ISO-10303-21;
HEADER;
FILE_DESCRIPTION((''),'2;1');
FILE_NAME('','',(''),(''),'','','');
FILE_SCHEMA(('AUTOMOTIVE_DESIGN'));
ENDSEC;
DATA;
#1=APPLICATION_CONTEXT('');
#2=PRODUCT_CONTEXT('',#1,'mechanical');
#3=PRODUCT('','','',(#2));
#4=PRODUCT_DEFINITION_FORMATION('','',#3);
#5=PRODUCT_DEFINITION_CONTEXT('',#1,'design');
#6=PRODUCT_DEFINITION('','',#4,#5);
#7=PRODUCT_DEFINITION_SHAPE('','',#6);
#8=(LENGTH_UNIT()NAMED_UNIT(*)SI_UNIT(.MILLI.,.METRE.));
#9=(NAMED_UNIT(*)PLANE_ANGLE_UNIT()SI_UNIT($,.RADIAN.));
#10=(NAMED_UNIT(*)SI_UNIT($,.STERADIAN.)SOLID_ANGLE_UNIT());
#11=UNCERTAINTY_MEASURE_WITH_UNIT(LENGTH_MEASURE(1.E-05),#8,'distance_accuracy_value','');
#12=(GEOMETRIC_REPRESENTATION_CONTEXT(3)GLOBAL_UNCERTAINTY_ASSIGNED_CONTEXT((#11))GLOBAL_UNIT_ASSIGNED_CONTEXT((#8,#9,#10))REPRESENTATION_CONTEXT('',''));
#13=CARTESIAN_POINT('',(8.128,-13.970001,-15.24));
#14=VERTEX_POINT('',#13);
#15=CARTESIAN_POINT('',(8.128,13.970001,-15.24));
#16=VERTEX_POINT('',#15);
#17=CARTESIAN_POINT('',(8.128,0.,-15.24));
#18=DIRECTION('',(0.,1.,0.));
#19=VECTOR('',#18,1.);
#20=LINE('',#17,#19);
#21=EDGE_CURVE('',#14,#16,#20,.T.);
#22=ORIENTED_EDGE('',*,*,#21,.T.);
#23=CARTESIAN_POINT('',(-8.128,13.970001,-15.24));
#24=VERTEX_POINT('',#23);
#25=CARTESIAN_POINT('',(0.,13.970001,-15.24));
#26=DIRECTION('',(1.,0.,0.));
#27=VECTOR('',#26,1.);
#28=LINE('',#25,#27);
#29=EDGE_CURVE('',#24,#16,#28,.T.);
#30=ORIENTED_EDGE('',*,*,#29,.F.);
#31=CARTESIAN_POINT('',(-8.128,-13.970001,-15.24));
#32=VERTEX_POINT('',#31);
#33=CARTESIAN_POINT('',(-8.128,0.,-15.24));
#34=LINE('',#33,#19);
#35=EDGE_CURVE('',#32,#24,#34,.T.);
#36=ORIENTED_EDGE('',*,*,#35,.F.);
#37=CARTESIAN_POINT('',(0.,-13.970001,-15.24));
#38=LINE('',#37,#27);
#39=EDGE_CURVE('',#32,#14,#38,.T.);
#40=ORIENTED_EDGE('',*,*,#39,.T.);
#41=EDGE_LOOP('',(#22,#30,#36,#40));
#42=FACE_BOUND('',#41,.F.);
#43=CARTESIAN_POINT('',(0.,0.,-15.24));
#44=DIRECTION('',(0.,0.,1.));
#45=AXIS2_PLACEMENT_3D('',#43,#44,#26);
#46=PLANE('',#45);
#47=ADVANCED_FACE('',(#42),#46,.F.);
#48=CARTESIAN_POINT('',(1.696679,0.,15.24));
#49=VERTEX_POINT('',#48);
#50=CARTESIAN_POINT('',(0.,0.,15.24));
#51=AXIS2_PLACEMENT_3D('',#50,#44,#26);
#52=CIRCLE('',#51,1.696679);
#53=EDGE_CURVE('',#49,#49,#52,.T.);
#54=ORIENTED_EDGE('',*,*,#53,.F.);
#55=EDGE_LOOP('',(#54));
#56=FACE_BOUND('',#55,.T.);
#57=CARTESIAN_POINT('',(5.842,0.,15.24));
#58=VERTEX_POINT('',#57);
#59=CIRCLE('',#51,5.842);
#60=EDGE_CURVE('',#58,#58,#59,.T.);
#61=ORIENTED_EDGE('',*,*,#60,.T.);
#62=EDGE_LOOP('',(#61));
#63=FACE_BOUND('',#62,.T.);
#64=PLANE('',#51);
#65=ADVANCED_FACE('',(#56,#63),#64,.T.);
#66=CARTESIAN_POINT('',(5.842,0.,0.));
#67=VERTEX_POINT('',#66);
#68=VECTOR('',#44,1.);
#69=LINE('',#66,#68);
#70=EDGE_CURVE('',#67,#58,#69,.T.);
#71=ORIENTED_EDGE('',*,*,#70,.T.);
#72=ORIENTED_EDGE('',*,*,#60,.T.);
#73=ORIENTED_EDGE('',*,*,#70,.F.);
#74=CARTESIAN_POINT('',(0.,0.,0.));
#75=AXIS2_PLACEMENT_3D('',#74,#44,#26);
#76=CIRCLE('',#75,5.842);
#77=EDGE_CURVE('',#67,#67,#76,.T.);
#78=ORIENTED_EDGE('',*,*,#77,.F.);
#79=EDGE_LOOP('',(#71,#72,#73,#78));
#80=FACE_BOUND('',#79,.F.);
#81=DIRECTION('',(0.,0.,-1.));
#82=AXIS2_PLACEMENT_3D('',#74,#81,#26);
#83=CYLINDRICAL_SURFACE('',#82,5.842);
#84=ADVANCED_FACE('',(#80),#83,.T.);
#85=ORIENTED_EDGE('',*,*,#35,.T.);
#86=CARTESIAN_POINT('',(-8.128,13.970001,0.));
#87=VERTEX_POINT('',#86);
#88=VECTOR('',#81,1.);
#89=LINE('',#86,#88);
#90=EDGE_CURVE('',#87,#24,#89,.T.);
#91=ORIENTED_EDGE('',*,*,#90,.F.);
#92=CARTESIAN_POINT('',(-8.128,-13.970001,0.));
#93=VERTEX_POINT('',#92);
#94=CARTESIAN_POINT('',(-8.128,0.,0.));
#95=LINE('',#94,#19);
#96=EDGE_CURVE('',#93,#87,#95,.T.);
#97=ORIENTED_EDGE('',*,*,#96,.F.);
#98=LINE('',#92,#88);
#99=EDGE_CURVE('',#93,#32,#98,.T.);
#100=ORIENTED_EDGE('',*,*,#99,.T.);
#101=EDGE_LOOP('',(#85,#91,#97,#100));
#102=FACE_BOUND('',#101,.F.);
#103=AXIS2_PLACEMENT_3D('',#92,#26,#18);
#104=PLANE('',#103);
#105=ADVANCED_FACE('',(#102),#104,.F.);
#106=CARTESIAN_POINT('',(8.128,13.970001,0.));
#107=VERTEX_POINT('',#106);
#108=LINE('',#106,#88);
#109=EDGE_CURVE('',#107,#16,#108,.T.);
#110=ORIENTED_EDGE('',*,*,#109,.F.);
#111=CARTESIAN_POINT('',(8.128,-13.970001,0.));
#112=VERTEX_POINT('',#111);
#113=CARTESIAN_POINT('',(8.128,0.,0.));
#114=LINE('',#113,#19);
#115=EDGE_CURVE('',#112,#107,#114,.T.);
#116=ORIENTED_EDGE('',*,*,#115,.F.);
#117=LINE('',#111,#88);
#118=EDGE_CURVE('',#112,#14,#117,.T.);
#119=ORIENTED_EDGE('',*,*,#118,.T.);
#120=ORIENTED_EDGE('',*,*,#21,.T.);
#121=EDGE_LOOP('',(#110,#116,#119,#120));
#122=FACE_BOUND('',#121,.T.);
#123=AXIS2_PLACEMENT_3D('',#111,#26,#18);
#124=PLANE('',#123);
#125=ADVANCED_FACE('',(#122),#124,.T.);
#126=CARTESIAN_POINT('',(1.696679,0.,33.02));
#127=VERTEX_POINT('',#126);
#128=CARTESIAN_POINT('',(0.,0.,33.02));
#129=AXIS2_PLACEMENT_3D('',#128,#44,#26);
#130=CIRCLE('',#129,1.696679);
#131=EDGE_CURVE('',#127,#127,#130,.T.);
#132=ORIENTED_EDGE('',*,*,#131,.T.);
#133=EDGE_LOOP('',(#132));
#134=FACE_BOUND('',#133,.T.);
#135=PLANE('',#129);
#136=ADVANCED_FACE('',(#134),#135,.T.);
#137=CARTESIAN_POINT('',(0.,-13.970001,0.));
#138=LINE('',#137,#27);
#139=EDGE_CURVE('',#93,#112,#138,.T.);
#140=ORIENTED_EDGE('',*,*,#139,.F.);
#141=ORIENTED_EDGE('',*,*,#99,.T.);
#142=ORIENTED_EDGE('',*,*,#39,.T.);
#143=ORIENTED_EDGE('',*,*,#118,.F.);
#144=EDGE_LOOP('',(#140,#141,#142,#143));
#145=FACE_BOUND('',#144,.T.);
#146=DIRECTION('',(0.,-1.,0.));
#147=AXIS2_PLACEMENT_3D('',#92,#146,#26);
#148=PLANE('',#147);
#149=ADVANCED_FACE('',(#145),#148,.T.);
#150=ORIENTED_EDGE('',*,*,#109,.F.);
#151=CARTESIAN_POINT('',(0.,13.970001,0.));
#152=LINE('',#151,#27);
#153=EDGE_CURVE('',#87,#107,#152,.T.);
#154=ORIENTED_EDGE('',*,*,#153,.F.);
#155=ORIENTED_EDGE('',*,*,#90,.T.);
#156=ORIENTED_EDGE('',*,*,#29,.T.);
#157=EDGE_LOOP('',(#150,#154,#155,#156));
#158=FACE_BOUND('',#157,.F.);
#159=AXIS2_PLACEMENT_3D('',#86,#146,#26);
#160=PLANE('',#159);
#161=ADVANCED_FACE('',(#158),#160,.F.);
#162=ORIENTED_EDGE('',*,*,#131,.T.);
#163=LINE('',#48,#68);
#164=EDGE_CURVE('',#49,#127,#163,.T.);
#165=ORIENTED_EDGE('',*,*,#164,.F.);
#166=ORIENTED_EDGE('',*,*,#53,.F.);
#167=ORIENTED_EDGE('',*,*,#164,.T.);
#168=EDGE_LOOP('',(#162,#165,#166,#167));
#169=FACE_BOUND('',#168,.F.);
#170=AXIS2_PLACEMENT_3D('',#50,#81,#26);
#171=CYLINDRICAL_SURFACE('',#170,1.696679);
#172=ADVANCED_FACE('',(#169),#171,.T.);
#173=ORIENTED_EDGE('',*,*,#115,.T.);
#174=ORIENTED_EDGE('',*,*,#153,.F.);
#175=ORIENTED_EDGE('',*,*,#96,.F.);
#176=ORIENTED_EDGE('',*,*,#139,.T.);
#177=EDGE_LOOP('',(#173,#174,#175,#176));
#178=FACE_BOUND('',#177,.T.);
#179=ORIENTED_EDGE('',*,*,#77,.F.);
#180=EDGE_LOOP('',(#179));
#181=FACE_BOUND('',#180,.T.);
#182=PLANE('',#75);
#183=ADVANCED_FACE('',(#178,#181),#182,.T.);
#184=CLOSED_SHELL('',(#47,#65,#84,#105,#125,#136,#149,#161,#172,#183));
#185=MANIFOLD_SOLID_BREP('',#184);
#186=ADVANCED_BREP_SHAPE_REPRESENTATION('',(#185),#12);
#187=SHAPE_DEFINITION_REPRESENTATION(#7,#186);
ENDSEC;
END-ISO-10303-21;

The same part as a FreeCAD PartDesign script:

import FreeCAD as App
import Part
import Sketcher
Q = App.Units.Quantity

doc = App.newDocument("Part")
body = doc.addObject("PartDesign::Body", "Body")

# Sketch on XY plane
sketch1 = body.newObject("Sketcher::SketchObject", "Sketch")
sketch1.AttachmentSupport = (doc.getObject("XY_Plane"), [""])
sketch1.MapMode = "FlatFace"
sketch1.addGeometry(Part.Circle(App.Vector(0, 0, 0), App.Vector(0, 0, 1), 5.842), False)
sketch1.addConstraint(Sketcher.Constraint("Coincident", 0, 3, -1, 1))
sketch1.addConstraint(Sketcher.Constraint("Diameter", 0, Q("0.46 in")))
pad1 = body.newObject("PartDesign::Pad", "Pad")
pad1.Profile = sketch1
pad1.Length = Q("0.6 in")

# Sketch on XY plane
sketch2 = body.newObject("Sketcher::SketchObject", "Sketch001")
sketch2.AttachmentSupport = (doc.getObject("XY_Plane"), [""])
sketch2.MapMode = "FlatFace"
sketch2.AttachmentOffset = App.Placement(App.Vector(0, 0, 0.6 * 25.4), App.Rotation())
sketch2.addGeometry(Part.Circle(App.Vector(0, 0, 0), App.Vector(0, 0, 1), 1.696679), False)
sketch2.addConstraint(Sketcher.Constraint("Coincident", 0, 3, -1, 1))
sketch2.addConstraint(Sketcher.Constraint("Diameter", 0, Q("3.393358 mm")))
pad2 = body.newObject("PartDesign::Pad", "Pad001")
pad2.Profile = sketch2
pad2.Length = Q("0.7 in")

# Sketch on XY plane
sketch3 = body.newObject("Sketcher::SketchObject", "Sketch002")
sketch3.AttachmentSupport = (doc.getObject("XY_Plane"), [""])
sketch3.MapMode = "FlatFace"
sketch3.addGeometry(Part.LineSegment(App.Vector(-8.128, 13.970001, 0), App.Vector(-8.128, -13.970001, 0)), False)
sketch3.addGeometry(Part.LineSegment(App.Vector(-8.128, -13.970001, 0), App.Vector(8.128, -13.970001, 0)), False)
sketch3.addGeometry(Part.LineSegment(App.Vector(8.128, -13.970001, 0), App.Vector(8.128, 13.970001, 0)), False)
sketch3.addGeometry(Part.LineSegment(App.Vector(8.128, 13.970001, 0), App.Vector(-8.128, 13.970001, 0)), False)
sketch3.addConstraint(Sketcher.Constraint("Coincident", 0, 2, 1, 1))
sketch3.addConstraint(Sketcher.Constraint("Coincident", 1, 2, 2, 1))
sketch3.addConstraint(Sketcher.Constraint("Coincident", 2, 2, 3, 1))
sketch3.addConstraint(Sketcher.Constraint("Coincident", 3, 2, 0, 1))
sketch3.addConstraint(Sketcher.Constraint("Vertical", 0))
sketch3.addConstraint(Sketcher.Constraint("Horizontal", 1))
sketch3.addConstraint(Sketcher.Constraint("Vertical", 2))
sketch3.addConstraint(Sketcher.Constraint("Horizontal", 3))
sketch3.addConstraint(Sketcher.Constraint("Symmetric", 0, 2, 2, 2, -1, 1))
sketch3.addConstraint(Sketcher.Constraint("DistanceY", 0, 2, 0, 1, Q("1.1000001 in")))
sketch3.addConstraint(Sketcher.Constraint("DistanceX", 1, 1, 1, 2, Q("0.64 in")))
pad3 = body.newObject("PartDesign::Pad", "Pad002")
pad3.Profile = sketch3
pad3.Length = Q("0.6 in")
pad3.Reversed = True

doc.recompute()
